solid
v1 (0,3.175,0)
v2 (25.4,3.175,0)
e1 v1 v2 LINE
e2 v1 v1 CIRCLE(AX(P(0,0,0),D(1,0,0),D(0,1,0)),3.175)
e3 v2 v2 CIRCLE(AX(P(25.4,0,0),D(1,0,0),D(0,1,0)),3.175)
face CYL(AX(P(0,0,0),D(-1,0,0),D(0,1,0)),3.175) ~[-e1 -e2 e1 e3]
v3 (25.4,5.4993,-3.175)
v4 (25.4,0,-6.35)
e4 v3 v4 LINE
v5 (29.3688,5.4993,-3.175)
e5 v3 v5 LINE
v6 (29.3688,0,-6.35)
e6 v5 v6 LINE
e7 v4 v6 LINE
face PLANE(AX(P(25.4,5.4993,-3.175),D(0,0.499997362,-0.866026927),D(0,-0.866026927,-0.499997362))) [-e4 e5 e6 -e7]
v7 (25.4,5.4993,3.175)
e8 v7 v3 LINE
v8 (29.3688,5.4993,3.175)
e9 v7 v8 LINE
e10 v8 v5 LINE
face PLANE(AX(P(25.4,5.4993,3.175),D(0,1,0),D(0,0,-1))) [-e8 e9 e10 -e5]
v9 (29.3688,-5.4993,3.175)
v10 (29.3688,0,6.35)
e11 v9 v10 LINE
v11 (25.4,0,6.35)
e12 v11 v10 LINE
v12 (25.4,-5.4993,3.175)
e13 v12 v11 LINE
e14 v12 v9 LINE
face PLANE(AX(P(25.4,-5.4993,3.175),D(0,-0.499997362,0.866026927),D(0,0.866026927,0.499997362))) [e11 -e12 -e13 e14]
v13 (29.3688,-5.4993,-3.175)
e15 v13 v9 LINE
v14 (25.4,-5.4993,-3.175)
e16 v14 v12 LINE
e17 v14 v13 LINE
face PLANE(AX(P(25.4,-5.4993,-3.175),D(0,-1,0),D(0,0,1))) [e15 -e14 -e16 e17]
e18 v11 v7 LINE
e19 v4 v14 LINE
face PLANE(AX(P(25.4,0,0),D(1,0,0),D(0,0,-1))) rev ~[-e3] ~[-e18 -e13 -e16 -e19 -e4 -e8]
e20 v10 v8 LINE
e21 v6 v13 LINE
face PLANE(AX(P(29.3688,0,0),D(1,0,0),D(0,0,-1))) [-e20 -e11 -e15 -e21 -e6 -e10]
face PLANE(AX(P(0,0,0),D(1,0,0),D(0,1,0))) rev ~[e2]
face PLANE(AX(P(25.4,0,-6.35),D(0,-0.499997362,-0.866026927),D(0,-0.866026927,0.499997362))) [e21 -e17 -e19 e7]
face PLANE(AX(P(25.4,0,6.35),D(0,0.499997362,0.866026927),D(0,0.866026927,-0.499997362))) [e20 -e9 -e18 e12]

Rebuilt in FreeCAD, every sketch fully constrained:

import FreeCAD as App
import Part
import Sketcher
from FreeCAD import Vector
Q = App.Units.Quantity


def add_polygon(sketch, points):
    """Adds a closed chain of lines whose ends are joined by coincident constraints."""
    first, n = sketch.GeometryCount, len(points)
    for a, b in zip(points, points[1:] + points[:1]):
        sketch.addGeometry(Part.LineSegment(App.Vector(*a, 0), App.Vector(*b, 0)), False)
    for i in range(n):
        sketch.addConstraint(Sketcher.Constraint("Coincident", first + i, 2, first + (i + 1) % n, 1))

doc = App.newDocument("Part")
body = doc.addObject("PartDesign::Body", "Body")

sketch1 = doc.addObject("Sketcher::SketchObject", "Sketch")
body.addObject(sketch1)
sketch1.AttachmentSupport = (doc.YZ_Plane, [""])
sketch1.MapMode = "FlatFace"
sketch1.addGeometry(Part.Circle(Vector(0, 0, 0), Vector(0, 0, 1), 3.2), False)
sketch1.addConstraint([
    Sketcher.Constraint("Coincident", 0, 3, -1, 1),
    Sketcher.Constraint("Diameter", 0, Q("0.25 in")),
])
pad1 = doc.addObject("PartDesign::Pad", "Pad")
body.addObject(pad1)
pad1.Profile = sketch1
pad1.Length = Q("1 in")

sketch2 = doc.addObject("Sketcher::SketchObject", "Sketch001")
body.addObject(sketch2)
sketch2.AttachmentSupport = (doc.YZ_Plane, [""])
sketch2.MapMode = "FlatFace"
sketch2.AttachmentOffset = App.Placement(Vector(0, 0, 1 * 25.4), App.Rotation())
add_polygon(sketch2, [(-5, -3), (0, -6), (5, -3), (5, 3), (0, 6), (-5, 3)])
sketch2.addConstraint([
    Sketcher.Constraint("Vertical", 2),
    Sketcher.Constraint("Vertical", 5),
    Sketcher.Constraint("Symmetric", 0, 2, 3, 2, -1, 1),
    Sketcher.Constraint("Symmetric", 1, 2, 4, 2, -1, 1),
    Sketcher.Constraint("PointOnObject", 0, 2, -2),
    Sketcher.Constraint("Parallel", 0, 3),
    Sketcher.Constraint("Horizontal", 2, 2, 4, 2),
    Sketcher.Constraint("DistanceY", 0, 2, 3, 2, Q("0.5 in")),
    Sketcher.Constraint("Angle", 0, Q("-29.9998 deg")),
    Sketcher.Constraint("DistanceY", 2, 1, 2, 2, Q("0.25 in")),
])
pad2 = doc.addObject("PartDesign::Pad", "Pad001")
body.addObject(pad2)
pad2.Profile = sketch2
pad2.Length = Q("0.156252 in")

doc.recompute()
